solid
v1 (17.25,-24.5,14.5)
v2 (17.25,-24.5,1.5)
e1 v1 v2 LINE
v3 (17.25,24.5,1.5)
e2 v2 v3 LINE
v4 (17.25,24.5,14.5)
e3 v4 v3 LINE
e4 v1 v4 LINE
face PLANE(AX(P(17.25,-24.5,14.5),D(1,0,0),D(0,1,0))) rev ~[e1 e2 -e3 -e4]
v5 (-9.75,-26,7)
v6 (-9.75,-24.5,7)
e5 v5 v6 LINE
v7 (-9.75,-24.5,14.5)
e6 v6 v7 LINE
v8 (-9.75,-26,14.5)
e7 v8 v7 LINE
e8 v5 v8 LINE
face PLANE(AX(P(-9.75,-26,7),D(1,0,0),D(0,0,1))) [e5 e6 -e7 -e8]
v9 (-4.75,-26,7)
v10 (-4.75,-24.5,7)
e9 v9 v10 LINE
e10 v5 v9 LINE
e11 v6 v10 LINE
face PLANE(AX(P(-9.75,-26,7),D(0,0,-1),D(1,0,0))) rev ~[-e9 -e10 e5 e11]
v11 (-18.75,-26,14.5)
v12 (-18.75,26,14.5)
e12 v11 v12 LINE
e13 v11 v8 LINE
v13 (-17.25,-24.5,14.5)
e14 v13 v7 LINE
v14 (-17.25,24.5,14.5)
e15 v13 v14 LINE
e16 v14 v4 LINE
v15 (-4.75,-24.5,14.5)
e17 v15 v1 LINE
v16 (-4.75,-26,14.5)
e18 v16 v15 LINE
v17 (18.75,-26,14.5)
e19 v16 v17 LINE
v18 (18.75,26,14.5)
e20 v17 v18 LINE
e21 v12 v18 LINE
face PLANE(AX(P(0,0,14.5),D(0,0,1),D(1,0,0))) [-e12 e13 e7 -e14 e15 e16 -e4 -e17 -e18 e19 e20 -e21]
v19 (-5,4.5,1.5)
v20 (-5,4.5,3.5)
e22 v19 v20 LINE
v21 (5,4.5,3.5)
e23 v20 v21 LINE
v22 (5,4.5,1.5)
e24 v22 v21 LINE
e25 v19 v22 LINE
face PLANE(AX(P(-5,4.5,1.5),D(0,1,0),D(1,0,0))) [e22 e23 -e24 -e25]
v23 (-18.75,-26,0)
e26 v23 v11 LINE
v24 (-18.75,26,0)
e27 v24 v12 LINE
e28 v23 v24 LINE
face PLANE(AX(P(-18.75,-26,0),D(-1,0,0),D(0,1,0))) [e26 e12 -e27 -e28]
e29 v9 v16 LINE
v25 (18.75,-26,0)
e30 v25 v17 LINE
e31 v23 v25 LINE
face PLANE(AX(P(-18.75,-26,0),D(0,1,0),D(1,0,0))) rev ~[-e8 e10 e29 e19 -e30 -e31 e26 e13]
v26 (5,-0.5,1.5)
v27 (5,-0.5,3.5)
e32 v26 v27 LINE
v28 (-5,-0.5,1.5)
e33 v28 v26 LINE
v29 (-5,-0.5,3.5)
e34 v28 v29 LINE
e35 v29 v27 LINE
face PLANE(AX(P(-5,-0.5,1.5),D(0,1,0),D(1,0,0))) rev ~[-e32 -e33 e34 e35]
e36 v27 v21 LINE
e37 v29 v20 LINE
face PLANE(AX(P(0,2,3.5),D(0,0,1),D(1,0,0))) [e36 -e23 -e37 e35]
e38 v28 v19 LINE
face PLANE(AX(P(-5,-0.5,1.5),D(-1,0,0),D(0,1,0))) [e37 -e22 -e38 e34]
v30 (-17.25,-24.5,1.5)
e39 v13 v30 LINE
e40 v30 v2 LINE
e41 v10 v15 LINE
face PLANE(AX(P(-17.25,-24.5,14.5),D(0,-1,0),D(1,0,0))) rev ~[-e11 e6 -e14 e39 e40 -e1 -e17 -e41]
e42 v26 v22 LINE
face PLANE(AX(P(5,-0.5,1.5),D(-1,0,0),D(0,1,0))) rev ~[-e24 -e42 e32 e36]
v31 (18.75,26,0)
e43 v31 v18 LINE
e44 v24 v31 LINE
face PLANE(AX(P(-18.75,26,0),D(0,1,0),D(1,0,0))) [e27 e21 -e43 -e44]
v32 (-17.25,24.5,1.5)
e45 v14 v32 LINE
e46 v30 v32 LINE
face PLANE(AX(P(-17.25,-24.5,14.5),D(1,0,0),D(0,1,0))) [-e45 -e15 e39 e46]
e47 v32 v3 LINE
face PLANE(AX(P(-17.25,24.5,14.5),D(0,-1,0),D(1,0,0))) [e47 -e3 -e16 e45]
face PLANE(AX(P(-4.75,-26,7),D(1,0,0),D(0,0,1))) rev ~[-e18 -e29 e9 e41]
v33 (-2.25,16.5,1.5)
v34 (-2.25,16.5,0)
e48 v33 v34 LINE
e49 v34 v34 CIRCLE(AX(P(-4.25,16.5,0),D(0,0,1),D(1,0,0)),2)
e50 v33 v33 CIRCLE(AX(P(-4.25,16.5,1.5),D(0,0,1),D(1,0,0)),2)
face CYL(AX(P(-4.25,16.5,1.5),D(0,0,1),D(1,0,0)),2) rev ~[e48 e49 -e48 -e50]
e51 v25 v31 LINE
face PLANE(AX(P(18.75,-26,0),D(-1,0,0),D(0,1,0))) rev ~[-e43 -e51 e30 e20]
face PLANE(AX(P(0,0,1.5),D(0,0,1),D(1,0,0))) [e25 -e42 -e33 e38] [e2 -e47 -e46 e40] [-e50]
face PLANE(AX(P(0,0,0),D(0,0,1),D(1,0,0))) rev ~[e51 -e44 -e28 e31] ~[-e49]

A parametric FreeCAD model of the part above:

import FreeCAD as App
import Part
import Sketcher

V = App.Vector
Q = App.Units.Quantity


def add_polygon(sketch, points):
    """Adds a closed chain of lines whose ends are joined by coincident constraints."""
    first, n = sketch.GeometryCount, len(points)
    for a, b in zip(points, points[1:] + points[:1]):
        sketch.addGeometry(Part.LineSegment(App.Vector(*a, 0), App.Vector(*b, 0)), False)
    for i in range(n):
        sketch.addConstraint(Sketcher.Constraint("Coincident", first + i, 2, first + (i + 1) % n, 1))

doc = App.newDocument("Part")
body = doc.addObject("PartDesign::Body", "Body")

# Sketch on XY plane
sketch1 = body.newObject("Sketcher::SketchObject", "Sketch")
sketch1.AttachmentSupport = (doc.getObject("XY_Plane"), [""])
sketch1.MapMode = "FlatFace"
add_polygon(sketch1, [(-19, 26), (-19, -26), (19, -26), (19, 26)])  # lines 0-3
sketch1.addConstraint([
    Sketcher.Constraint("Vertical", 0),
    Sketcher.Constraint("Horizontal", 1),
    Sketcher.Constraint("Vertical", 2),
    Sketcher.Constraint("Horizontal", 3),
    Sketcher.Constraint("Symmetric", 0, 2, 2, 2, -1, 1),
    Sketcher.Constraint("DistanceY", 0, 2, 0, 1, Q("52 mm")),
    Sketcher.Constraint("DistanceX", 1, 1, 1, 2, Q("37.5 mm")),
])
pad1 = body.newObject("PartDesign::Pad", "Pad")
pad1.Profile = sketch1
pad1.Length = 14.5

# Sketch on XY plane
sketch2 = body.newObject("Sketcher::SketchObject", "Sketch001")
sketch2.AttachmentSupport = (doc.getObject("XY_Plane"), [""])
sketch2.MapMode = "FlatFace"
sketch2.AttachmentOffset = App.Placement(V(0, 0, 14.5), App.Rotation())
add_polygon(sketch2, [(-17, 24), (-17, -24), (17, -24), (17, 24)])  # lines 0-3
sketch2.addConstraint([
    Sketcher.Constraint("Vertical", 0),
    Sketcher.Constraint("Horizontal", 1),
    Sketcher.Constraint("Vertical", 2),
    Sketcher.Constraint("Horizontal", 3),
    Sketcher.Constraint("Symmetric", 0, 2, 2, 2, -1, 1),
    Sketcher.Constraint("DistanceY", 0, 2, 0, 1, Q("49 mm")),
    Sketcher.Constraint("DistanceX", 1, 1, 1, 2, Q("34.5 mm")),
])
pocket1 = body.newObject("PartDesign::Pocket", "Pocket")
pocket1.Profile = sketch2
pocket1.Length = 13

# Sketch on XY plane
sketch3 = body.newObject("Sketcher::SketchObject", "Sketch002")
sketch3.AttachmentSupport = (doc.getObject("XY_Plane"), [""])
sketch3.MapMode = "FlatFace"
sketch3.AttachmentOffset = App.Placement(V(0, 0, 1.5), App.Rotation())
sketch3.addGeometry(Part.Circle(V(-4.2, 16.5, 0), V(0, 0, 1), 2), False)
sketch3.addConstraint([
    Sketcher.Constraint("Diameter", 0, Q("4 mm")),
    Sketcher.Constraint("DistanceY", -1, 1, 0, 3, Q("16.5 mm")),
    Sketcher.Constraint("DistanceX", 0, 3, -1, 1, Q("4.25 mm")),
])
pocket2 = body.newObject("PartDesign::Pocket", "Pocket001")
pocket2.Profile = sketch3
pocket2.Length = 25

# Sketch on XY plane
sketch4 = body.newObject("Sketcher::SketchObject", "Sketch003")
sketch4.AttachmentSupport = (doc.getObject("XY_Plane"), [""])
sketch4.MapMode = "FlatFace"
sketch4.AttachmentOffset = App.Placement(V(0, 0, 1.5), App.Rotation())
add_polygon(sketch4, [(-5, 4), (-5, 0), (5, 0), (5, 4)])  # lines 0-3
sketch4.addConstraint([
    Sketcher.Constraint("Vertical", 0),
    Sketcher.Constraint("Horizontal", 1),
    Sketcher.Constraint("Vertical", 2),
    Sketcher.Constraint("Horizontal", 3),
    Sketcher.Constraint("DistanceX", 1, 1, 1, 2, Q("10 mm")),
    Sketcher.Constraint("DistanceY", 0, 2, 0, 1, Q("5 mm")),
    Sketcher.Constraint("DistanceX", 0, 2, -1, 1, Q("5 mm")),
    Sketcher.Constraint("DistanceY", 0, 2, -1, 1, Q("0.5 mm")),
])
pad2 = body.newObject("PartDesign::Pad", "Pad001")
pad2.Profile = sketch4
pad2.Length = 2

# Sketch on XZ plane
sketch5 = body.newObject("Sketcher::SketchObject", "Sketch004")
sketch5.AttachmentSupport = (doc.getObject("XZ_Plane"), [""])
sketch5.MapMode = "FlatFace"
sketch5.AttachmentOffset = App.Placement(V(0, 0, 26), App.Rotation())
add_polygon(sketch5, [(-10, 14), (-10, 7), (-5, 7), (-5, 14)])  # lines 0-3
sketch5.addConstraint([
    Sketcher.Constraint("Vertical", 0),
    Sketcher.Constraint("Horizontal", 1),
    Sketcher.Constraint("Vertical", 2),
    Sketcher.Constraint("Horizontal", 3),
    Sketcher.Constraint("DistanceX", 1, 1, 1, 2, Q("5 mm")),
    Sketcher.Constraint("DistanceY", 0, 2, 0, 1, Q("7.5 mm")),
    Sketcher.Constraint("DistanceY", -1, 1, 0, 2, Q("7 mm")),
    Sketcher.Constraint("DistanceX", 0, 2, -1, 1, Q("9.75 mm")),
])
pocket3 = body.newObject("PartDesign::Pocket", "Pocket002")
pocket3.Profile = sketch5
pocket3.Length = 10

doc.recompute()
